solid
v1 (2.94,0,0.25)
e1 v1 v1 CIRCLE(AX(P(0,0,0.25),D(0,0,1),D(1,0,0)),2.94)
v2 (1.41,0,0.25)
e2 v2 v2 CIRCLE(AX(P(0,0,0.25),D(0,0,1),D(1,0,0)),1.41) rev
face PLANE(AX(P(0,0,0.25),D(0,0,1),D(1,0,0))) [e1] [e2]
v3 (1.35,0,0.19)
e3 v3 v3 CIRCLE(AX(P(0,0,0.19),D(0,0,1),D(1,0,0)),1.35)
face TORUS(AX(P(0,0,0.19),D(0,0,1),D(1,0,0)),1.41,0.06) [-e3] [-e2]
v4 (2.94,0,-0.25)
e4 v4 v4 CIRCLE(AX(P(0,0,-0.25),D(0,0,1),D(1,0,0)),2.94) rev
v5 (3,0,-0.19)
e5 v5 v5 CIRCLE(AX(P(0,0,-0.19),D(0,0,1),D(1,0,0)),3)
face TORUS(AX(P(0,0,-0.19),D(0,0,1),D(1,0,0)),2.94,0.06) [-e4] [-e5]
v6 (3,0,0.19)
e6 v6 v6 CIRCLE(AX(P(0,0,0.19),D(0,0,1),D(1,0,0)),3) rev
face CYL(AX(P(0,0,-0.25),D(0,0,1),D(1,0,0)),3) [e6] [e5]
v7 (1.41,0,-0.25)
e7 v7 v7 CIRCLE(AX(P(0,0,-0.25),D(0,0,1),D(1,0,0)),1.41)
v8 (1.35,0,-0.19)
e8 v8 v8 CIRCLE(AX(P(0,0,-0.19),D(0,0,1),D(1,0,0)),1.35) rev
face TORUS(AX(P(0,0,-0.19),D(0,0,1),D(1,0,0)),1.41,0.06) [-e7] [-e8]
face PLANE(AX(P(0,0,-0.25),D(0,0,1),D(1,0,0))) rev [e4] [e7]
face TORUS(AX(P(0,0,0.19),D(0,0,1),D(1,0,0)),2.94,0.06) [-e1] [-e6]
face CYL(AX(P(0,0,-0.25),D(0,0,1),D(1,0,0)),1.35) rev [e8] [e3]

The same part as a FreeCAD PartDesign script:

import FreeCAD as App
import Part
import Sketcher
from FreeCAD import Vector
Q = App.Units.Quantity


def edges_at(feature, points):
    """Names of the edges that pass closest to the given points."""
    edges = feature.Shape.Edges
    near = lambda p: min(range(len(edges)), key=lambda i: edges[i].distToShape(Part.Vertex(*p))[0])
    return sorted({f"Edge{near(p) + 1}" for p in points})

doc = App.newDocument("Part")
body = doc.addObject("PartDesign::Body", "Body")

# Sketch on XY plane
sketch1 = body.newObject("Sketcher::SketchObject", "Sketch")
sketch1.AttachmentSupport = (doc.getObject("XY_Plane"), [""])
sketch1.MapMode = "FlatFace"
sketch1.AttachmentOffset = App.Placement(Vector(0, 0, 0.25), App.Rotation())
sketch1.addGeometry([
    Part.Circle(Vector(0, 0, 0), Vector(0, 0, 1), 3),
    Part.Circle(Vector(0, 0, 0), Vector(0, 0, 1), 1.35),
], False)
sketch1.addConstraint([
    Sketcher.Constraint("Coincident", 0, 3, -1, 1),
    Sketcher.Constraint("Coincident", 1, 3, -1, 1),
    Sketcher.Constraint("Diameter", 0, Q("6 mm")),
    Sketcher.Constraint("Diameter", 1, Q("2.7 mm")),
])
pad1 = body.newObject("PartDesign::Pad", "Pad")
pad1.Profile = sketch1
pad1.Length = 0.5
pad1.Reversed = True
doc.recompute()

fillet = body.newObject("PartDesign::Fillet", "Fillet")
fillet.Base = (pad1, edges_at(pad1, [
    (-3, 0, 0.25),
    (-3, 0, -0.25),
    (-1.35, 0, -0.25),
    (-1.35, 0, 0.25),
]))
fillet.Radius = 0.06

doc.recompute()
